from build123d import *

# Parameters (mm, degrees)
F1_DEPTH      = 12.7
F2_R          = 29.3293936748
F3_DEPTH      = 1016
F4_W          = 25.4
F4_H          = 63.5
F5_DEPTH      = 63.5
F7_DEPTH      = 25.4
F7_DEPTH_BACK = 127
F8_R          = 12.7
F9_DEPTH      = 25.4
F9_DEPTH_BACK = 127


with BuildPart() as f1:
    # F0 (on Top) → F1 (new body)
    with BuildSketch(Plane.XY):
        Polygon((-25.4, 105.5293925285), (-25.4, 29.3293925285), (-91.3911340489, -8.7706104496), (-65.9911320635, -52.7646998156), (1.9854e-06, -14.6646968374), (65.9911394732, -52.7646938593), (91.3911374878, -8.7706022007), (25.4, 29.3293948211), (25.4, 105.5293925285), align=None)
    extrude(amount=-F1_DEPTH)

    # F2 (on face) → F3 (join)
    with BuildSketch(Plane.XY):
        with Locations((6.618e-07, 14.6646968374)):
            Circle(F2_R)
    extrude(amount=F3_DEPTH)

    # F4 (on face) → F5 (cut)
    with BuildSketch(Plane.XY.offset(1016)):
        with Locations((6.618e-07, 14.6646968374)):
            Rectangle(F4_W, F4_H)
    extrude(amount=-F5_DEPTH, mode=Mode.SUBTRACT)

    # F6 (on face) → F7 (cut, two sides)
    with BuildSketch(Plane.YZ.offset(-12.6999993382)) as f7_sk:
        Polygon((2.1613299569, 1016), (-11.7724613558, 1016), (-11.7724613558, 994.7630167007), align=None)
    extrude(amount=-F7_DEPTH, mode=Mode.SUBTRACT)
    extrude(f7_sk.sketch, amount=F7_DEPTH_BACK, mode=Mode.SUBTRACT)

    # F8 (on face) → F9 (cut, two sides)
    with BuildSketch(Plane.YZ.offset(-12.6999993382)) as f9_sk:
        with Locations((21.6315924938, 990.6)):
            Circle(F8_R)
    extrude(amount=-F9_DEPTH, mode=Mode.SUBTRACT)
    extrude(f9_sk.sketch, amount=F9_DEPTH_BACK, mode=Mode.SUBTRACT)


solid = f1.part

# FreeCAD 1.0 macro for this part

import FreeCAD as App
import Part
import Sketcher

V = App.Vector
Q = App.Units.Quantity

doc = App.newDocument("Part")
body = doc.addObject("PartDesign::Body", "Body")

sketch1 = doc.addObject("Sketcher::SketchObject", "Sketch")
body.addObject(sketch1)
sketch1.AttachmentSupport = (doc.XY_Plane, [""])
sketch1.MapMode = "FlatFace"
sketch1.addGeometry([
    Part.LineSegment(V(-25.4, 105.529393, 0), V(-25.4, 29.329393, 0)),
    Part.LineSegment(V(-25.4, 29.329393, 0), V(-91.391134, -8.77061, 0)),
    Part.LineSegment(V(-91.391134, -8.77061, 0), V(-65.991132, -52.7647, 0)),
    Part.LineSegment(V(-65.991132, -52.7647, 0), V(0.000002, -14.664697, 0)),
    Part.LineSegment(V(0.000002, -14.664697, 0), V(65.991139, -52.764694, 0)),
    Part.LineSegment(V(65.991139, -52.764694, 0), V(91.391137, -8.770602, 0)),
    Part.LineSegment(V(91.391137, -8.770602, 0), V(25.4, 29.329395, 0)),
    Part.LineSegment(V(25.4, 29.329395, 0), V(25.4, 105.529393, 0)),
    Part.LineSegment(V(25.4, 105.529393, 0), V(-25.4, 105.529393, 0)),
], False)
sketch1.addConstraint([
    Sketcher.Constraint("Coincident", 0, 2, 1, 1),
    Sketcher.Constraint("Coincident", 1, 2, 2, 1),
    Sketcher.Constraint("Coincident", 2, 2, 3, 1),
    Sketcher.Constraint("Coincident", 3, 2, 4, 1),
    Sketcher.Constraint("Coincident", 4, 2, 5, 1),
    Sketcher.Constraint("Coincident", 5, 2, 6, 1),
    Sketcher.Constraint("Coincident", 6, 2, 7, 1),
    Sketcher.Constraint("Coincident", 7, 2, 8, 1),
    Sketcher.Constraint("Coincident", 8, 2, 0, 1),
    Sketcher.Constraint("Vertical", 0),
    Sketcher.Constraint("Vertical", 7),
    Sketcher.Constraint("Horizontal", 8),
    Sketcher.Constraint("Symmetric", 2, 2, 4, 2, -2),
    Sketcher.Constraint("Symmetric", 1, 2, 5, 2, -2),
    Sketcher.Constraint("Symmetric", 0, 2, 6, 2, -2),
    Sketcher.Constraint("PointOnObject", 3, 2, -2),
    Sketcher.Constraint("Perpendicular", 1, 2),
    Sketcher.Constraint("Perpendicular", 2, 3),
    Sketcher.Constraint("Equal", 1, 3),
    Sketcher.Constraint("DistanceX", 8, 2, 8, 1, Q("2 in")),
    Sketcher.Constraint("DistanceY", 0, 2, 0, 1, Q("3 in")),
    Sketcher.Constraint("Distance", 1, Q("3 in")),
    Sketcher.Constraint("Distance", 2, Q("2 in")),
    Sketcher.Constraint("DistanceY", 2, 2, -1, 1, 52.7647),
])
pad1 = doc.addObject("PartDesign::Pad", "Pad")
body.addObject(pad1)
pad1.Profile = sketch1
pad1.Length = Q("0.5 in")
pad1.Reversed = True

sketch2 = doc.addObject("Sketcher::SketchObject", "Sketch001")
body.addObject(sketch2)
sketch2.AttachmentSupport = (doc.XY_Plane, [""])
sketch2.MapMode = "FlatFace"
sketch2.addGeometry(Part.Circle(V(0.000001, 14.664697, 0), V(0, 0, 1), 29.329394), False)
sketch2.addConstraint([
    Sketcher.Constraint("PointOnObject", 0, 3, -2),
    Sketcher.Constraint("Diameter", 0, 58.658787),
    Sketcher.Constraint("DistanceY", -1, 1, 0, 3, 14.664697),
])
pad2 = doc.addObject("PartDesign::Pad", "Pad001")
body.addObject(pad2)
pad2.Profile = sketch2
pad2.Length = Q("40 in")

sketch3 = doc.addObject("Sketcher::SketchObject", "Sketch002")
body.addObject(sketch3)
sketch3.AttachmentSupport = (doc.XY_Plane, [""])
sketch3.MapMode = "FlatFace"
sketch3.AttachmentOffset = App.Placement(V(0, 0, 40 * 25.4), App.Rotation())
sketch3.addGeometry([
    Part.LineSegment(V(-12.699999, 46.414697, 0), V(-12.699999, -17.085303, 0)),
    Part.LineSegment(V(-12.699999, -17.085303, 0), V(12.700001, -17.085303, 0)),
    Part.LineSegment(V(12.700001, -17.085303, 0), V(12.700001, 46.414697, 0)),
    Part.LineSegment(V(12.700001, 46.414697, 0), V(-12.699999, 46.414697, 0)),
], False)
sketch3.addConstraint([
    Sketcher.Constraint("Coincident", 0, 2, 1, 1),
    Sketcher.Constraint("Coincident", 1, 2, 2, 1),
    Sketcher.Constraint("Coincident", 2, 2, 3, 1),
    Sketcher.Constraint("Coincident", 3, 2, 0, 1),
    Sketcher.Constraint("Vertical", 0),
    Sketcher.Constraint("Horizontal", 1),
    Sketcher.Constraint("Vertical", 2),
    Sketcher.Constraint("Horizontal", 3),
    Sketcher.Constraint("DistanceX", 1, 1, 1, 2, Q("1 in")),
    Sketcher.Constraint("DistanceY", 0, 2, 0, 1, Q("2.5 in")),
    Sketcher.Constraint("DistanceX", 0, 2, -1, 1, Q("0.5 in")),
    Sketcher.Constraint("DistanceY", 0, 2, -1, 1, 17.085303),
])
pocket1 = doc.addObject("PartDesign::Pocket", "Pocket")
body.addObject(pocket1)
pocket1.Profile = sketch3
pocket1.Length = Q("2.5 in")

sketch4 = doc.addObject("Sketcher::SketchObject", "Sketch003")
body.addObject(sketch4)
sketch4.AttachmentSupport = (doc.YZ_Plane, [""])
sketch4.MapMode = "FlatFace"
sketch4.AttachmentOffset = App.Placement(V(0, 0, -0.5 * 25.4), App.Rotation())
sketch4.addGeometry([
    Part.LineSegment(V(2.16133, 1016, 0), V(-11.772461, 1016, 0)),
    Part.LineSegment(V(-11.772461, 1016, 0), V(-11.772461, 994.763017, 0)),
    Part.LineSegment(V(-11.772461, 994.763017, 0), V(2.16133, 1016, 0)),
], False)
sketch4.addConstraint([
    Sketcher.Constraint("Coincident", 0, 2, 1, 1),
    Sketcher.Constraint("Coincident", 1, 2, 2, 1),
    Sketcher.Constraint("Coincident", 2, 2, 0, 1),
    Sketcher.Constraint("Horizontal", 0),
    Sketcher.Constraint("Vertical", 1),
    Sketcher.Constraint("Distance", 2, Q("1 in")),
    Sketcher.Constraint("DistanceY", -1, 1, 0, 2, Q("40 in")),
    Sketcher.Constraint("DistanceX", 0, 2, 0, 1, 13.933791),
    Sketcher.Constraint("DistanceX", 0, 2, -1, 1, 11.772461),
])
pocket2 = doc.addObject("PartDesign::Pocket", "Pocket001")
body.addObject(pocket2)
pocket2.Profile = sketch4
pocket2.Type = "ThroughAll"
pocket2.Midplane = True

sketch5 = doc.addObject("Sketcher::SketchObject", "Sketch004")
body.addObject(sketch5)
sketch5.AttachmentSupport = (doc.YZ_Plane, [""])
sketch5.MapMode = "FlatFace"
sketch5.AttachmentOffset = App.Placement(V(0, 0, -0.5 * 25.4), App.Rotation())
sketch5.addGeometry(Part.Circle(V(21.631592, 990.6, 0), V(0, 0, 1), 12.7), False)
sketch5.addConstraint([
    Sketcher.Constraint("Diameter", 0, Q("1 in")),
    Sketcher.Constraint("DistanceY", -1, 1, 0, 3, Q("39 in")),
    Sketcher.Constraint("DistanceX", -1, 1, 0, 3, 21.631592),
])
pocket3 = doc.addObject("PartDesign::Pocket", "Pocket002")
body.addObject(pocket3)
pocket3.Profile = sketch5
pocket3.Type = "ThroughAll"
pocket3.Midplane = True

doc.recompute()
